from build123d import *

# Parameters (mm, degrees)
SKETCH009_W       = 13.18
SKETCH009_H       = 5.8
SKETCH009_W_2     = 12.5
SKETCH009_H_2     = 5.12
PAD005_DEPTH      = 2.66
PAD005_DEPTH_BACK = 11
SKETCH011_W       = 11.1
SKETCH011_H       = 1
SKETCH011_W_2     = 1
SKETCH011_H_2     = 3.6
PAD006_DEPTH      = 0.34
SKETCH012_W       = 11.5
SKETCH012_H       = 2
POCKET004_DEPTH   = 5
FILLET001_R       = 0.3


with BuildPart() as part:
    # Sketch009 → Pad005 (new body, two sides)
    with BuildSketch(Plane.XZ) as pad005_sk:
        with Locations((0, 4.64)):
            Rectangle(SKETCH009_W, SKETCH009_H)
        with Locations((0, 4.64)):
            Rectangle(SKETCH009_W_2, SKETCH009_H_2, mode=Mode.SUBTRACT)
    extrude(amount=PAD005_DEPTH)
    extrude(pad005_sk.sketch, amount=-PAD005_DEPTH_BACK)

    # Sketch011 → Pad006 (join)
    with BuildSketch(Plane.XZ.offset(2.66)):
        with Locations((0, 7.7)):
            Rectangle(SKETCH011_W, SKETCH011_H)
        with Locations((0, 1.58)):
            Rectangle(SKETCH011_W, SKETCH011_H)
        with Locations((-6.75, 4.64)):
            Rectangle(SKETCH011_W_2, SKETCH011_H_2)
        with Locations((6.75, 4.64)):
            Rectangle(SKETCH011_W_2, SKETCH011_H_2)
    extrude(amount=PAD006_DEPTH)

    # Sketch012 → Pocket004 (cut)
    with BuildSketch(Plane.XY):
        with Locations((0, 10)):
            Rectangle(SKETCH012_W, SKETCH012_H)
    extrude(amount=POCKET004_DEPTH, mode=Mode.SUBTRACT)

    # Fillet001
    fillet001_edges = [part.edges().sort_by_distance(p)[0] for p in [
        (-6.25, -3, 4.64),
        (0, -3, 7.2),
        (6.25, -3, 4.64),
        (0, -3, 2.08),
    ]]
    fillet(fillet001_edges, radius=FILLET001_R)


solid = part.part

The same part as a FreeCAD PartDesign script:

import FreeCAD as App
import Part
import Sketcher
from FreeCAD import Vector


def edges_at(feature, points):
    """Names of the edges that pass closest to the given points."""
    edges = feature.Shape.Edges
    near = lambda p: min(range(len(edges)), key=lambda i: edges[i].distToShape(Part.Vertex(*p))[0])
    return sorted({f"Edge{near(p) + 1}" for p in points})


def add_polygon(sketch, points):
    """Adds a closed chain of lines whose ends are joined by coincident constraints."""
    first, n = sketch.GeometryCount, len(points)
    for a, b in zip(points, points[1:] + points[:1]):
        sketch.addGeometry(Part.LineSegment(App.Vector(*a, 0), App.Vector(*b, 0)), False)
    for i in range(n):
        sketch.addConstraint(Sketcher.Constraint("Coincident", first + i, 2, first + (i + 1) % n, 1))

doc = App.newDocument("Part")
body = doc.addObject("PartDesign::Body", "Body")

sketch1 = body.newObject("Sketcher::SketchObject", "Sketch")
sketch1.AttachmentSupport = (doc.getObject("XZ_Plane"), [""])
sketch1.MapMode = "FlatFace"
add_polygon(sketch1, [(-6.59, 7.54), (-6.59, 1.74), (6.59, 1.74), (6.59, 7.54)])
add_polygon(sketch1, [(6.25, 2.08), (-6.25, 2.08), (-6.25, 7.2), (6.25, 7.2)])
sketch1.addConstraint([
    Sketcher.Constraint("Vertical", 0),
    Sketcher.Constraint("Horizontal", 1),
    Sketcher.Constraint("Vertical", 2),
    Sketcher.Constraint("Horizontal", 3),
    Sketcher.Constraint("Horizontal", 4),
    Sketcher.Constraint("Vertical", 5),
    Sketcher.Constraint("Horizontal", 6),
    Sketcher.Constraint("Vertical", 7),
    Sketcher.Constraint("DistanceX", 4, 2, 4, 1, 12.5),
    Sketcher.Constraint("DistanceY", 0, 2, 0, 1, 5.8),
    Sketcher.Constraint("DistanceX", 1, 1, 1, 2, 13.18),
    Sketcher.Constraint("DistanceY", 5, 1, 5, 2, 5.12),
    Sketcher.Constraint("DistanceY", -1, 1, 5, 2, 7.2),
    Sketcher.Constraint("DistanceX", 0, 2, -1, 1, 6.59),
    Sketcher.Constraint("DistanceY", -1, 1, 0, 2, 1.74),
    Sketcher.Constraint("DistanceX", 4, 2, -1, 1, 6.25),
])
pad1 = body.newObject("PartDesign::Pad", "Pad")
pad1.Profile = sketch1
pad1.Type = "TwoLengths"
pad1.Length = 2.66
pad1.Length2 = 11

sketch2 = body.newObject("Sketcher::SketchObject", "Sketch001")
sketch2.AttachmentSupport = (doc.getObject("XZ_Plane"), [""])
sketch2.MapMode = "FlatFace"
sketch2.AttachmentOffset = App.Placement(Vector(0, 0, 2.66), App.Rotation())
add_polygon(sketch2, [(-5.55, 8.2), (-5.55, 7.2), (5.55, 7.2), (5.55, 8.2)])
add_polygon(sketch2, [(-5.55, 2.08), (-5.55, 1.08), (5.55, 1.08), (5.55, 2.08)])
add_polygon(sketch2, [(-7.25, 6.44), (-7.25, 2.84), (-6.25, 2.84), (-6.25, 6.44)])
add_polygon(sketch2, [(6.25, 6.44), (6.25, 2.84), (7.25, 2.84), (7.25, 6.44)])
sketch2.addConstraint([
    Sketcher.Constraint("Vertical", 0),
    Sketcher.Constraint("Horizontal", 1),
    Sketcher.Constraint("Vertical", 2),
    Sketcher.Constraint("Horizontal", 3),
    Sketcher.Constraint("Vertical", 4),
    Sketcher.Constraint("Horizontal", 5),
    Sketcher.Constraint("Vertical", 6),
    Sketcher.Constraint("Horizontal", 7),
    Sketcher.Constraint("Vertical", 8),
    Sketcher.Constraint("Horizontal", 9),
    Sketcher.Constraint("Vertical", 10),
    Sketcher.Constraint("Horizontal", 11),
    Sketcher.Constraint("Vertical", 12),
    Sketcher.Constraint("Horizontal", 13),
    Sketcher.Constraint("Vertical", 14),
    Sketcher.Constraint("Horizontal", 15),
    Sketcher.Constraint("Symmetric", 9, 2, 12, 2, -2),
    Sketcher.Constraint("Symmetric", 11, 2, 14, 2, -2),
    Sketcher.Constraint("Vertical", 3, 2, 4, 2),
    Sketcher.Constraint("Vertical", 2, 2, 5, 2),
    Sketcher.Constraint("Equal", 15, 0),
    Sketcher.Constraint("Equal", 2, 4),
    Sketcher.Constraint("DistanceX", 9, 1, 9, 2, 1.0),
    Sketcher.Constraint("DistanceX", 1, 1, 1, 2, 11.1),
    Sketcher.Constraint("DistanceY", 8, 2, 8, 1, 3.6),
    Sketcher.Constraint("DistanceY", -1, 1, 0, 2, 7.2),
    Sketcher.Constraint("DistanceX", 8, 2, 7, 2, 1.7),
    Sketcher.Constraint("DistanceX", 6, 2, 12, 2, 0.7),
    Sketcher.Constraint("DistanceY", -1, 1, 4, 2, 1.08),
    Sketcher.Constraint("DistanceY", -1, 1, 8, 2, 2.84),
])
pad2 = body.newObject("PartDesign::Pad", "Pad001")
pad2.Profile = sketch2
pad2.Length = 0.34

sketch3 = body.newObject("Sketcher::SketchObject", "Sketch002")
sketch3.AttachmentSupport = (doc.getObject("XY_Plane"), [""])
sketch3.MapMode = "FlatFace"
add_polygon(sketch3, [(-5.75, 11), (-5.75, 9), (5.75, 9), (5.75, 11)])
sketch3.addConstraint([
    Sketcher.Constraint("Vertical", 0),
    Sketcher.Constraint("Horizontal", 1),
    Sketcher.Constraint("Vertical", 2),
    Sketcher.Constraint("Horizontal", 3),
    Sketcher.Constraint("DistanceY", 0, 2, 0, 1, 2.0),
    Sketcher.Constraint("DistanceX", 1, 1, 1, 2, 11.5),
    Sketcher.Constraint("DistanceY", -1, 1, 0, 2, 9.0),
    Sketcher.Constraint("DistanceX", 0, 2, -1, 1, 5.75),
])
pocket1 = body.newObject("PartDesign::Pocket", "Pocket")
pocket1.Profile = sketch3
pocket1.Length = 5
pocket1.Reversed = True
doc.recompute()

fillet = body.newObject("PartDesign::Fillet", "Fillet")
fillet.Base = (pocket1, edges_at(pocket1, [
    (-6.25, -3, 4.64),
    (0, -3, 7.2),
    (6.25, -3, 4.64),
    (0, -3, 2.08),
]))
fillet.Radius = 0.3

doc.recompute()
